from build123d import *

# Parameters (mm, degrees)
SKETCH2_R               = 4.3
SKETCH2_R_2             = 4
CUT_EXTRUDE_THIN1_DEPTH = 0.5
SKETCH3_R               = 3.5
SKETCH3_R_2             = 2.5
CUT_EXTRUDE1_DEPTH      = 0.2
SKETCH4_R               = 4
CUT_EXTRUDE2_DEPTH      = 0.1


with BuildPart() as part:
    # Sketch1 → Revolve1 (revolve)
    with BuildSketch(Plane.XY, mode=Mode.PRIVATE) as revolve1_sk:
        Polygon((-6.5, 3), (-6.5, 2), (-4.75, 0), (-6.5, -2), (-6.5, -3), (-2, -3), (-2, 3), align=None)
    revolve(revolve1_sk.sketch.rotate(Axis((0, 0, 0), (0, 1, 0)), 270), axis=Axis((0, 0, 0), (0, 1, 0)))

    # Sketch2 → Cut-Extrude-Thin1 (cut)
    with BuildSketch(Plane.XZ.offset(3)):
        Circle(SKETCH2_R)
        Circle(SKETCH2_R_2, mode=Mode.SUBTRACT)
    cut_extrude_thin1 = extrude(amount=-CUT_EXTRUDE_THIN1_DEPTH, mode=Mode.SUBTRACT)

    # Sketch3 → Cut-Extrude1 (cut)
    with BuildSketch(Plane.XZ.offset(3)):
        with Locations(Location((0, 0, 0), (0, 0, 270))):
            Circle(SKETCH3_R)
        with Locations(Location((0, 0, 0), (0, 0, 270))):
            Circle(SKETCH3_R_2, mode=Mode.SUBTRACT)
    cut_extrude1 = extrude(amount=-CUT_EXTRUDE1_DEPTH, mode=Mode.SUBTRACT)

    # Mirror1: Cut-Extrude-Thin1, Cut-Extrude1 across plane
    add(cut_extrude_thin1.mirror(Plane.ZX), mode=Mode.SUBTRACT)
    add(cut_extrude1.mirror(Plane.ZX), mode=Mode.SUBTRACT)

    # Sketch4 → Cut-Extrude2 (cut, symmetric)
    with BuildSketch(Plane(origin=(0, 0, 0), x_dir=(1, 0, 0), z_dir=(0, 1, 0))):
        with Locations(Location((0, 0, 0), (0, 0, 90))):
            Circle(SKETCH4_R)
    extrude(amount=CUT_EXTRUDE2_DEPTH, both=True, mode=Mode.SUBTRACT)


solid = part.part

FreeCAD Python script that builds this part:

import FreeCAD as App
import Part
import Sketcher
Q = App.Units.Quantity

doc = App.newDocument("Part")
body = doc.addObject("PartDesign::Body", "Body")

sketch1 = doc.addObject("Sketcher::SketchObject", "Sketch")
body.addObject(sketch1)
sketch1.AttachmentSupport = (doc.XY_Plane, [""])
sketch1.MapMode = "FlatFace"
sketch1.addGeometry(Part.LineSegment(App.Vector(-6.5, 3, 0), App.Vector(-6.5, 2, 0)), False)
sketch1.addGeometry(Part.LineSegment(App.Vector(-6.5, 2, 0), App.Vector(-4.8, 0, 0)), False)
sketch1.addGeometry(Part.LineSegment(App.Vector(-4.8, 0, 0), App.Vector(-6.5, -2, 0)), False)
sketch1.addGeometry(Part.LineSegment(App.Vector(-6.5, -2, 0), App.Vector(-6.5, -3, 0)), False)
sketch1.addGeometry(Part.LineSegment(App.Vector(-6.5, -3, 0), App.Vector(-2, -3, 0)), False)
sketch1.addGeometry(Part.LineSegment(App.Vector(-2, -3, 0), App.Vector(-2, 3, 0)), False)
sketch1.addGeometry(Part.LineSegment(App.Vector(-2, 3, 0), App.Vector(-6.5, 3, 0)), False)
sketch1.addConstraint(Sketcher.Constraint("Coincident", 0, 2, 1, 1))
sketch1.addConstraint(Sketcher.Constraint("Coincident", 1, 2, 2, 1))
sketch1.addConstraint(Sketcher.Constraint("Coincident", 2, 2, 3, 1))
sketch1.addConstraint(Sketcher.Constraint("Coincident", 3, 2, 4, 1))
sketch1.addConstraint(Sketcher.Constraint("Coincident", 4, 2, 5, 1))
sketch1.addConstraint(Sketcher.Constraint("Coincident", 5, 2, 6, 1))
sketch1.addConstraint(Sketcher.Constraint("Coincident", 6, 2, 0, 1))
sketch1.addConstraint(Sketcher.Constraint("Vertical", 0))
sketch1.addConstraint(Sketcher.Constraint("Vertical", 3))
sketch1.addConstraint(Sketcher.Constraint("Horizontal", 4))
sketch1.addConstraint(Sketcher.Constraint("Vertical", 5))
sketch1.addConstraint(Sketcher.Constraint("Horizontal", 6))
sketch1.addConstraint(Sketcher.Constraint("Symmetric", 0, 2, 2, 2, -1))
sketch1.addConstraint(Sketcher.Constraint("PointOnObject", 1, 2, -1))
sketch1.addConstraint(Sketcher.Constraint("Equal", 0, 3))
sketch1.addConstraint(Sketcher.Constraint("DistanceY", 0, 2, 0, 1, Q("1 mm")))
sketch1.addConstraint(Sketcher.Constraint("DistanceY", 5, 1, 5, 2, Q("6 mm")))
sketch1.addConstraint(Sketcher.Constraint("DistanceX", 4, 1, 4, 2, Q("4.5 mm")))
sketch1.addConstraint(Sketcher.Constraint("DistanceX", 4, 2, -1, 1, Q("2 mm")))
sketch1.addConstraint(Sketcher.Constraint("DistanceX", 1, 2, -1, 1, Q("4.75 mm")))
revolution = doc.addObject("PartDesign::Revolution", "Revolution")
body.addObject(revolution)
revolution.Profile = sketch1
revolution.ReferenceAxis = (sketch1, ["V_Axis"])
revolution.Angle = 360

sketch2 = doc.addObject("Sketcher::SketchObject", "Sketch001")
body.addObject(sketch2)
sketch2.AttachmentSupport = (doc.XZ_Plane, [""])
sketch2.MapMode = "FlatFace"
sketch2.AttachmentOffset = App.Placement(App.Vector(0, 0, 3), App.Rotation())
sketch2.addGeometry(Part.Circle(App.Vector(0, 0, 0), App.Vector(0, 0, 1), 4.3), False)
sketch2.addGeometry(Part.Circle(App.Vector(0, 0, 0), App.Vector(0, 0, 1), 4), False)
sketch2.addConstraint(Sketcher.Constraint("Coincident", 0, 3, -1, 1))
sketch2.addConstraint(Sketcher.Constraint("Coincident", 1, 3, -1, 1))
sketch2.addConstraint(Sketcher.Constraint("Diameter", 1, Q("8 mm")))
sketch2.addConstraint(Sketcher.Constraint("Diameter", 0, Q("8.6 mm")))
pocket1 = doc.addObject("PartDesign::Pocket", "Pocket")
body.addObject(pocket1)
pocket1.Profile = sketch2
pocket1.Length = 0.5

sketch3 = doc.addObject("Sketcher::SketchObject", "Sketch002")
body.addObject(sketch3)
sketch3.AttachmentSupport = (doc.XZ_Plane, [""])
sketch3.MapMode = "FlatFace"
sketch3.AttachmentOffset = App.Placement(App.Vector(0, 0, 3), App.Rotation())
sketch3.addGeometry(Part.Circle(App.Vector(0, 0, 0), App.Vector(0, 0, 1), 3.5), False)
sketch3.addGeometry(Part.Circle(App.Vector(0, 0, 0), App.Vector(0, 0, 1), 2.5), False)
sketch3.addConstraint(Sketcher.Constraint("Coincident", 0, 3, -1, 1))
sketch3.addConstraint(Sketcher.Constraint("Coincident", 1, 3, -1, 1))
sketch3.addConstraint(Sketcher.Constraint("Diameter", 0, Q("7 mm")))
sketch3.addConstraint(Sketcher.Constraint("Diameter", 1, Q("5 mm")))
pocket2 = doc.addObject("PartDesign::Pocket", "Pocket001")
body.addObject(pocket2)
pocket2.Profile = sketch3
pocket2.Length = 0.2
doc.recompute()

mirrored = doc.addObject("PartDesign::Mirrored", "Mirrored")
body.addObject(mirrored)
mirrored.Originals = [pocket1, pocket2]
mirrored.MirrorPlane = (doc.XZ_Plane, [""])
body.Tip = mirrored

sketch4 = doc.addObject("Sketcher::SketchObject", "Sketch003")
body.addObject(sketch4)
sketch4.AttachmentSupport = (doc.XZ_Plane, [""])
sketch4.MapMode = "FlatFace"
sketch4.addGeometry(Part.Circle(App.Vector(0, 0, 0), App.Vector(0, 0, 1), 4), False)
sketch4.addConstraint(Sketcher.Constraint("Coincident", 0, 3, -1, 1))
sketch4.addConstraint(Sketcher.Constraint("Diameter", 0, Q("8 mm")))
pocket3 = doc.addObject("PartDesign::Pocket", "Pocket002")
body.addObject(pocket3)
pocket3.Profile = sketch4
pocket3.Length = 0.2
pocket3.Midplane = True

doc.recompute()
